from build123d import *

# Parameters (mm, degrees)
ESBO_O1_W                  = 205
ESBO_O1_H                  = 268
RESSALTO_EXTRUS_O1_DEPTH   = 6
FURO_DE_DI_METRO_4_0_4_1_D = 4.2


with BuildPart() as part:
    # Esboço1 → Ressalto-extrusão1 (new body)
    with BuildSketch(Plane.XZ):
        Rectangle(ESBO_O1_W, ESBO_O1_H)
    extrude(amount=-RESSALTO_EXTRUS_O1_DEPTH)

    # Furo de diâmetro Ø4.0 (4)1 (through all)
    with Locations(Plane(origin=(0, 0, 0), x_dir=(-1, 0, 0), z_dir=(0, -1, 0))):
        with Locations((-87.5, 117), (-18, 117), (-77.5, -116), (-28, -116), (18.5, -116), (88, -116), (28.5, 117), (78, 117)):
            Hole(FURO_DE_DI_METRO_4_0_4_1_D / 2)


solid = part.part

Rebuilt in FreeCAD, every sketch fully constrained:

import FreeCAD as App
import Part
import Sketcher

V = App.Vector


def add_polygon(sketch, points):
    """Adds a closed chain of lines whose ends are joined by coincident constraints."""
    first, n = sketch.GeometryCount, len(points)
    for a, b in zip(points, points[1:] + points[:1]):
        sketch.addGeometry(Part.LineSegment(App.Vector(*a, 0), App.Vector(*b, 0)), False)
    for i in range(n):
        sketch.addConstraint(Sketcher.Constraint("Coincident", first + i, 2, first + (i + 1) % n, 1))

doc = App.newDocument("Part")
body = doc.addObject("PartDesign::Body", "Body")

# Sketch on XZ plane
sketch1 = doc.addObject("Sketcher::SketchObject", "Sketch")
body.addObject(sketch1)
sketch1.AttachmentSupport = (doc.XZ_Plane, [""])
sketch1.MapMode = "FlatFace"
add_polygon(sketch1, [(-102, 134), (-102, -134), (102, -134), (102, 134)])  # lines 0-3
sketch1.addConstraint([
    Sketcher.Constraint("Vertical", 0),
    Sketcher.Constraint("Horizontal", 1),
    Sketcher.Constraint("Vertical", 2),
    Sketcher.Constraint("Horizontal", 3),
    Sketcher.Constraint("Symmetric", 0, 2, 2, 2, -1, 1),
    Sketcher.Constraint("DistanceX", 1, 1, 1, 2, 205.0),
    Sketcher.Constraint("DistanceY", 0, 2, 0, 1, 268.0),
])
pad1 = doc.addObject("PartDesign::Pad", "Pad")
body.addObject(pad1)
pad1.Profile = sketch1
pad1.Length = 6
pad1.Reversed = True

# Sketch on XZ plane
sketch2 = doc.addObject("Sketcher::SketchObject", "Sketch001")
body.addObject(sketch2)
sketch2.AttachmentSupport = (doc.XZ_Plane, [""])
sketch2.MapMode = "FlatFace"
sketch2.addGeometry([
    Part.Circle(V(87.5, -117, 0), V(0, 0, 1), 2.1),  # 0
    Part.Circle(V(18, -117, 0), V(0, 0, 1), 2.1),  # 1
    Part.Circle(V(77.5, 116, 0), V(0, 0, 1), 2.1),  # 2
    Part.Circle(V(28, 116, 0), V(0, 0, 1), 2.1),  # 3
    Part.Circle(V(-18.5, 116, 0), V(0, 0, 1), 2.1),  # 4
    Part.Circle(V(-88, 116, 0), V(0, 0, 1), 2.1),  # 5
    Part.Circle(V(-28.5, -117, 0), V(0, 0, 1), 2.1),  # 6
    Part.Circle(V(-78, -117, 0), V(0, 0, 1), 2.1),  # 7
], False)
sketch2.addConstraint([
    Sketcher.Constraint("Equal", 0, 1),
    Sketcher.Constraint("Equal", 1, 2),
    Sketcher.Constraint("Equal", 2, 3),
    Sketcher.Constraint("Equal", 3, 4),
    Sketcher.Constraint("Equal", 4, 5),
    Sketcher.Constraint("Equal", 5, 6),
    Sketcher.Constraint("Equal", 6, 7),
    Sketcher.Constraint("Horizontal", 0, 3, 1, 3),
    Sketcher.Constraint("Horizontal", 2, 3, 3, 3),
    Sketcher.Constraint("Horizontal", 3, 3, 4, 3),
    Sketcher.Constraint("Horizontal", 4, 3, 5, 3),
    Sketcher.Constraint("Horizontal", 1, 3, 6, 3),
    Sketcher.Constraint("Horizontal", 6, 3, 7, 3),
    Sketcher.Constraint("Diameter", 0, 4.2),
    Sketcher.Constraint("DistanceY", 0, 3, -1, 1, 117.0),
    Sketcher.Constraint("DistanceX", -1, 1, 1, 3, 18.0),
    Sketcher.Constraint("DistanceY", -1, 1, 2, 3, 116.0),
    Sketcher.Constraint("DistanceX", -1, 1, 3, 3, 28.0),
    Sketcher.Constraint("DistanceX", 5, 3, -1, 1, 88.0),
    Sketcher.Constraint("DistanceX", 7, 3, -1, 1, 78.0),
    Sketcher.Constraint("DistanceX", 2, 3, 0, 3, 10.0),
    Sketcher.Constraint("DistanceX", 4, 3, 2, 3, 96.0),
    Sketcher.Constraint("DistanceX", 6, 3, 0, 3, 116.0),
    Sketcher.Constraint("DistanceX", -1, 1, 0, 3, 87.5),
])
doc.recompute()
hole = doc.addObject("PartDesign::Hole", "Hole")
body.addObject(hole)
hole.Profile = sketch2
hole.ThreadType = "None"
hole.Diameter = 4.2
hole.DepthType = "ThroughAll"

doc.recompute()
